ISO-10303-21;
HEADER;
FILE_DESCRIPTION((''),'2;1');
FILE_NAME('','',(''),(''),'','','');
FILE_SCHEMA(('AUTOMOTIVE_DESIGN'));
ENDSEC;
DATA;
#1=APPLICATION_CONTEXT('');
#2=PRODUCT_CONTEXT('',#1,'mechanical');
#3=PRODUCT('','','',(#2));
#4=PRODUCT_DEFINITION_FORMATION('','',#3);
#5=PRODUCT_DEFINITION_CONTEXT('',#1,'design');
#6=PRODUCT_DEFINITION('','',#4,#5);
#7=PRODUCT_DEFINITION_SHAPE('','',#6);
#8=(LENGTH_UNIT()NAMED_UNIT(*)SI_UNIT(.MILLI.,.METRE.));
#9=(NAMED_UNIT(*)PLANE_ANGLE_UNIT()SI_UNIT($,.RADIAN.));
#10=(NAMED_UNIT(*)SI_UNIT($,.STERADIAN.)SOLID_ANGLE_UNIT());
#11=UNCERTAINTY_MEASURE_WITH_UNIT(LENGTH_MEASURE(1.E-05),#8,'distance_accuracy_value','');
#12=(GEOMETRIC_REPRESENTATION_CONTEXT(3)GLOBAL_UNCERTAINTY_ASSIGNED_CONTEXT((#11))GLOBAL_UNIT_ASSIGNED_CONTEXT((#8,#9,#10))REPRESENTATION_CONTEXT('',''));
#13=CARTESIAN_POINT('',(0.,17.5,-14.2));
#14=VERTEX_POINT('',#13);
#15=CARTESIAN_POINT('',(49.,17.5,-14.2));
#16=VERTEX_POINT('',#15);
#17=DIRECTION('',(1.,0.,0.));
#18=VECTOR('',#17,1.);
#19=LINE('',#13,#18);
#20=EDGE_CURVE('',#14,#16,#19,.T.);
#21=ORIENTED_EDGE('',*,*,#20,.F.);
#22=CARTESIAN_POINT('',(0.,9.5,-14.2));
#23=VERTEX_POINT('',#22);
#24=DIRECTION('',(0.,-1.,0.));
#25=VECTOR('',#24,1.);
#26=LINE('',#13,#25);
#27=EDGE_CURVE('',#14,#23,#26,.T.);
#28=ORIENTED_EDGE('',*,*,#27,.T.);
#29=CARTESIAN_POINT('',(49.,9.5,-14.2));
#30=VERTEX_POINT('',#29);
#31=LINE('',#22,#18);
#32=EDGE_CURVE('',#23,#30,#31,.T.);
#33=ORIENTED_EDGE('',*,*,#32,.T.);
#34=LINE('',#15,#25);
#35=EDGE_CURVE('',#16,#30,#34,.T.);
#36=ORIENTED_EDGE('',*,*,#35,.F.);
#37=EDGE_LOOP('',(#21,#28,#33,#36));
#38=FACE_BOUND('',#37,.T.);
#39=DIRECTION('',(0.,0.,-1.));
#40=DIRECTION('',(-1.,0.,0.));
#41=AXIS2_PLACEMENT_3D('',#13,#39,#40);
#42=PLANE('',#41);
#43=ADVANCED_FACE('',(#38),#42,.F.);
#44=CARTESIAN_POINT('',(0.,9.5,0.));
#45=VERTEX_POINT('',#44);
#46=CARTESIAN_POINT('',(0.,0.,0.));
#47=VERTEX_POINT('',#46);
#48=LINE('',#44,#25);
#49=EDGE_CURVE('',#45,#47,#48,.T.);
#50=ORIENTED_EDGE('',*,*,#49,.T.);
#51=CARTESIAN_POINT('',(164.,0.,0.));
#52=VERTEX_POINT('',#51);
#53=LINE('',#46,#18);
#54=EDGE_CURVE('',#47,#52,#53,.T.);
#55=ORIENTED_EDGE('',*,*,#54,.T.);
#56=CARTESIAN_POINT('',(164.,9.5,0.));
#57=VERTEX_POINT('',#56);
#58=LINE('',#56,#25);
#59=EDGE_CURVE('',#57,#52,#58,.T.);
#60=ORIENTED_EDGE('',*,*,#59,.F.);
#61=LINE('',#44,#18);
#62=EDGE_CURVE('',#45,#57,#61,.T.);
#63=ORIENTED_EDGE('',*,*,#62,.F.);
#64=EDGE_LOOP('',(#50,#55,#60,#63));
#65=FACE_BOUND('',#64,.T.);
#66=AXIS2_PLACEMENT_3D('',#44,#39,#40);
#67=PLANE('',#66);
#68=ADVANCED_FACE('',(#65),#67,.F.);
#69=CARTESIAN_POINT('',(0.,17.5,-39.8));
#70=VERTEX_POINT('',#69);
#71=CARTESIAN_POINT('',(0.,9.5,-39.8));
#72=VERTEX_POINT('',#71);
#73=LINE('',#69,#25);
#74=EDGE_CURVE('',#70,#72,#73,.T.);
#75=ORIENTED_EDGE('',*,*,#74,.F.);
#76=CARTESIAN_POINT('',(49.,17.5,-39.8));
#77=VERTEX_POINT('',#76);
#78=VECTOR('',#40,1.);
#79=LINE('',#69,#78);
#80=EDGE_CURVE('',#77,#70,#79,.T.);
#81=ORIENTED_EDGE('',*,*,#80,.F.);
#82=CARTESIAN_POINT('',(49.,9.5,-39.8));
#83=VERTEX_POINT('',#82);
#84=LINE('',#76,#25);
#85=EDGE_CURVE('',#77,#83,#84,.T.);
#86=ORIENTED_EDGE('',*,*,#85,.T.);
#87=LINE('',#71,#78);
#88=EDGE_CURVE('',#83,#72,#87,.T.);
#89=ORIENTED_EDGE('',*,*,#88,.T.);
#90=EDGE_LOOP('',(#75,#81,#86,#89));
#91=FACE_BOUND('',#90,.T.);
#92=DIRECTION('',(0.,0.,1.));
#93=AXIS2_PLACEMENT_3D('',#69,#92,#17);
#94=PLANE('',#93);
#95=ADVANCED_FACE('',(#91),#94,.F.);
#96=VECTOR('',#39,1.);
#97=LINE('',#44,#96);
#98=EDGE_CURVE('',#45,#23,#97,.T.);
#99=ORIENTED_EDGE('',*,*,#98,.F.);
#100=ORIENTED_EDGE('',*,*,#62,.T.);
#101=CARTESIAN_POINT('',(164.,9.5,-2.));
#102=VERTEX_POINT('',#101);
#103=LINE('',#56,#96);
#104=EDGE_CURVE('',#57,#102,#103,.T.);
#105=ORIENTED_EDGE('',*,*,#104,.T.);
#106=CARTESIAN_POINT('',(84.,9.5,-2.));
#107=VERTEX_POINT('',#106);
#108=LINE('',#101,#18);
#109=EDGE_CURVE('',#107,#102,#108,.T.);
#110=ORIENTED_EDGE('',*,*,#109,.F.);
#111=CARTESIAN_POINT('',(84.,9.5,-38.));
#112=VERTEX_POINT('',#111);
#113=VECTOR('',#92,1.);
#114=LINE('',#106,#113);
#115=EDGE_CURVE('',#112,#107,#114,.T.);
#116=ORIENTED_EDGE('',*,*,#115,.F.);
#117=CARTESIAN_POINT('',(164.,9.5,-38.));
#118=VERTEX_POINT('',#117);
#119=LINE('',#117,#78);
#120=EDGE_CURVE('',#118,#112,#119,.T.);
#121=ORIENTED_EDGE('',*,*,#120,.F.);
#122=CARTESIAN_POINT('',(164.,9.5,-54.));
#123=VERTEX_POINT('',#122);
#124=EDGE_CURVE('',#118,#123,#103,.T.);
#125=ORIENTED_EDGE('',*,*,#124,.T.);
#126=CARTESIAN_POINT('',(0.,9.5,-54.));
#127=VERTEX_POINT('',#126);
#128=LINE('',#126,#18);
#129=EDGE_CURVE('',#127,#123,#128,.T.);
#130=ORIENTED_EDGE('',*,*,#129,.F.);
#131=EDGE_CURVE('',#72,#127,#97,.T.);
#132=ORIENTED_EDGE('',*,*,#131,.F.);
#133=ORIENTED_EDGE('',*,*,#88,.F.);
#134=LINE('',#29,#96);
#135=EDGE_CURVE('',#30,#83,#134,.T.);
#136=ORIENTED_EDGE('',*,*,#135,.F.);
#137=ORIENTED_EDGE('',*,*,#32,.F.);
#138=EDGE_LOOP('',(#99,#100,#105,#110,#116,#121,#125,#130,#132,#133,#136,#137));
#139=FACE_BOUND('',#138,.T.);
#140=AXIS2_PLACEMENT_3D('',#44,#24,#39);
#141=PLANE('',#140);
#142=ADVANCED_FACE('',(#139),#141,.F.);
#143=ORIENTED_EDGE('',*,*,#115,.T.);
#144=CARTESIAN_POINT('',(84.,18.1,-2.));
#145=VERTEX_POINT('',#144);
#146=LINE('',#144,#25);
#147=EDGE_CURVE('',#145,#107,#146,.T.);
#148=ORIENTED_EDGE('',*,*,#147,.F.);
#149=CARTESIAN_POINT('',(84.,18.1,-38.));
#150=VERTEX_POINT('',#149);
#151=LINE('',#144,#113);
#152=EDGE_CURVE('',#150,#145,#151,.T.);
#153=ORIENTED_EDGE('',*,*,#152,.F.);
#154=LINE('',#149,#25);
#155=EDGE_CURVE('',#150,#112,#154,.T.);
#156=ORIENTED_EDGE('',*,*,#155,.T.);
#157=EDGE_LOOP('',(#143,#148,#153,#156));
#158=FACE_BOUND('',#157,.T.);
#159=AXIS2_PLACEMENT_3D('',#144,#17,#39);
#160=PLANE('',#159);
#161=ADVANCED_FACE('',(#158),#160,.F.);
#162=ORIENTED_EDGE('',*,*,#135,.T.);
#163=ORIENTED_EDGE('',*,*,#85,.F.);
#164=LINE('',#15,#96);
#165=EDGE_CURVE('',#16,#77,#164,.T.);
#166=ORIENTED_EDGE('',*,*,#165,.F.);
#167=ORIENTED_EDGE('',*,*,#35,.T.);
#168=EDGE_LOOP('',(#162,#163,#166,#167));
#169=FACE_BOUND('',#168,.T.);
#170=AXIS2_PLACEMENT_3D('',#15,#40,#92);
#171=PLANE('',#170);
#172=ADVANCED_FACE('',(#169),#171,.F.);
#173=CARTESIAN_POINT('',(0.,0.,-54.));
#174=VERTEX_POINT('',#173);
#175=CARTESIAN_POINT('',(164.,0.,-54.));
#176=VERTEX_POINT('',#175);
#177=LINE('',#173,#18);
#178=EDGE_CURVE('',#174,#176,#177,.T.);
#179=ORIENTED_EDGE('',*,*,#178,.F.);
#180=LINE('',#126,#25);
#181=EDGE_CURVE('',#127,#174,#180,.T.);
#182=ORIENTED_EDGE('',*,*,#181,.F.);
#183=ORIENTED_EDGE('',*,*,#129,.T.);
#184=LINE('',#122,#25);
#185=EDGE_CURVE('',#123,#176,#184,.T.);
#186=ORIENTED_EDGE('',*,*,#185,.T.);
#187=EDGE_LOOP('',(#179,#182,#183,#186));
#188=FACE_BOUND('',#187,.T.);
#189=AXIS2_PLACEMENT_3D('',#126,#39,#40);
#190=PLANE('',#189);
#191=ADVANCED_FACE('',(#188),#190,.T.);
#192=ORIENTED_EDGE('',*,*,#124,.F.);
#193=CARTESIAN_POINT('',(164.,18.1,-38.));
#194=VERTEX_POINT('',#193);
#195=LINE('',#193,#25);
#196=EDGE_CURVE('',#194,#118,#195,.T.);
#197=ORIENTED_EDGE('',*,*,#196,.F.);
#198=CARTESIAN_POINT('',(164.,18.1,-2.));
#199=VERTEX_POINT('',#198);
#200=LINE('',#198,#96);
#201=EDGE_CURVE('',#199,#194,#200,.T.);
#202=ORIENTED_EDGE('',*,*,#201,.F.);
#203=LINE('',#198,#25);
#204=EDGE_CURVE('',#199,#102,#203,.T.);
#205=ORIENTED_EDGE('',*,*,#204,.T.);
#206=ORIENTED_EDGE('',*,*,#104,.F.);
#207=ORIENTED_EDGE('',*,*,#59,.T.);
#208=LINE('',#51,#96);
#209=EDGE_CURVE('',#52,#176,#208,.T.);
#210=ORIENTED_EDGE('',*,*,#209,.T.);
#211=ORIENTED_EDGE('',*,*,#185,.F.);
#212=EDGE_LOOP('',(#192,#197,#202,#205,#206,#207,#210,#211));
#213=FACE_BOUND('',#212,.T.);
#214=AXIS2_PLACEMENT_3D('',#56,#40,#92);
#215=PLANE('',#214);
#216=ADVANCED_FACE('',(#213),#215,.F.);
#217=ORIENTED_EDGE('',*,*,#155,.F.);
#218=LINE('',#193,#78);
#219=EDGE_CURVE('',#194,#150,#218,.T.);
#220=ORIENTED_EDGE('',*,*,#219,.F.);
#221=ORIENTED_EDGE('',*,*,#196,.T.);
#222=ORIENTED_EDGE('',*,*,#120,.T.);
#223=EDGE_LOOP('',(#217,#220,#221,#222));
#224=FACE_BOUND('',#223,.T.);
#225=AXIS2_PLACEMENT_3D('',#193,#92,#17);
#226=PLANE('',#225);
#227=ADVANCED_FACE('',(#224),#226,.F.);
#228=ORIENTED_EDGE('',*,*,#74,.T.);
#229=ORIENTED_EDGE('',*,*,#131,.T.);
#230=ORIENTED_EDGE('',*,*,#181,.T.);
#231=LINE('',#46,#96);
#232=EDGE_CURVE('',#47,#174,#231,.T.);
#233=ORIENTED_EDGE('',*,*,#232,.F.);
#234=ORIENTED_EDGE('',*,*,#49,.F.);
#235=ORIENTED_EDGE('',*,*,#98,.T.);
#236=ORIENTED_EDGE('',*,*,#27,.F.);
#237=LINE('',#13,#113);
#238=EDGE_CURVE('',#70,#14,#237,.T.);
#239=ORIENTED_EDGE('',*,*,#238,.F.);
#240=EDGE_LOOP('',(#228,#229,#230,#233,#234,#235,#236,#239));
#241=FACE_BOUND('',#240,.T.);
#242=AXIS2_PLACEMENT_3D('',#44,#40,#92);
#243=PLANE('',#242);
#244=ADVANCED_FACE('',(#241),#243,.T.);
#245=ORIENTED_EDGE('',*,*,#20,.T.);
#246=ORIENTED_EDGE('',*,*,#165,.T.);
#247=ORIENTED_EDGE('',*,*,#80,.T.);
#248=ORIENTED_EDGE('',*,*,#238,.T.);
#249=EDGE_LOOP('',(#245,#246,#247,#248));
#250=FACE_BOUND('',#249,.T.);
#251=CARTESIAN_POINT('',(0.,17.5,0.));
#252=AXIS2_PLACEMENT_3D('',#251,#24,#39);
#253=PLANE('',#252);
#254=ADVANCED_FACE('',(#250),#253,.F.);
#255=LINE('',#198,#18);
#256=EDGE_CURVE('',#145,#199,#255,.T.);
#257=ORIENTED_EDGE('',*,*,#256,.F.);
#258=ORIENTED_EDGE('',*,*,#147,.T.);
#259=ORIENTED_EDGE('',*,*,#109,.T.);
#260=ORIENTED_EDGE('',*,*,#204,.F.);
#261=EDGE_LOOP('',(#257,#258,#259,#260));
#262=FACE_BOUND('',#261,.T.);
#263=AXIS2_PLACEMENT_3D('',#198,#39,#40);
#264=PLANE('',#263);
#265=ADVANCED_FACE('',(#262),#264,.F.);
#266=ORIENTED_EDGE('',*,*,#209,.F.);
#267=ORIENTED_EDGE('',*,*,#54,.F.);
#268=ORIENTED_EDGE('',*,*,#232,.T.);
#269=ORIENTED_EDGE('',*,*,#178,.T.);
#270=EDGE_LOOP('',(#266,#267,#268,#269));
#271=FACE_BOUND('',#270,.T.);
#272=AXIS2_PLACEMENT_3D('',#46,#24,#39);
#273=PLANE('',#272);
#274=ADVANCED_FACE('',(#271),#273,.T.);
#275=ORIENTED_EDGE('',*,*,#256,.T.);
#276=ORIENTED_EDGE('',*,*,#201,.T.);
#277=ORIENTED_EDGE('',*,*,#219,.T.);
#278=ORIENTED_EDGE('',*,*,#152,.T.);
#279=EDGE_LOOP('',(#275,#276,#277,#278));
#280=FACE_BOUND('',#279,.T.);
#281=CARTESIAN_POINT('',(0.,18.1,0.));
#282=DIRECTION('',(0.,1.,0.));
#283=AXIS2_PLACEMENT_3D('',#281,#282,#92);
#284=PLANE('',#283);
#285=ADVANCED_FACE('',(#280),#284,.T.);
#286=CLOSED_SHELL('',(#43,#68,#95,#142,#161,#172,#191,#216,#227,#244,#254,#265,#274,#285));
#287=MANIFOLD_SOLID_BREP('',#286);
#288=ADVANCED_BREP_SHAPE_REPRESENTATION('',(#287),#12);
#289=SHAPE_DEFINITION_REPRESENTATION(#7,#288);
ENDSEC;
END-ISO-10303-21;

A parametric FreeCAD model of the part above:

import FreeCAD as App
import Part
import Sketcher
Q = App.Units.Quantity


def add_polygon(sketch, points):
    """Adds a closed chain of lines whose ends are joined by coincident constraints."""
    first, n = sketch.GeometryCount, len(points)
    for a, b in zip(points, points[1:] + points[:1]):
        sketch.addGeometry(Part.LineSegment(App.Vector(*a, 0), App.Vector(*b, 0)), False)
    for i in range(n):
        sketch.addConstraint(Sketcher.Constraint("Coincident", first + i, 2, first + (i + 1) % n, 1))

doc = App.newDocument("Part")
params = doc.addObject("Spreadsheet::Sheet", "Params")
for row, (alias, value) in enumerate([
    ("sketch1_width", "164 mm"),
    ("sketch1_height", "54 mm"),
    ("pad1_length", "9.5 mm"),
    ("sketch2_width", "49 mm"),
    ("sketch2_height", "25.6 mm"),
    ("pad2_length", "8 mm"),
    ("sketch3_width", "80 mm"),
    ("sketch3_height", "36 mm"),
    ("pad3_length", "8.6 mm"),
], start=1):
    params.set(f"A{row}", alias)
    params.set(f"B{row}", "=" + value)
    params.setAlias(f"B{row}", alias)

body = doc.addObject("PartDesign::Body", "Body")

sketch1 = body.newObject("Sketcher::SketchObject", "Sketch")
sketch1.AttachmentSupport = (doc.getObject("XZ_Plane"), [""])
sketch1.MapMode = "FlatFace"
add_polygon(sketch1, [(0, -54), (0, 0), (164, 0), (164, -54)])
sketch1.addConstraint(Sketcher.Constraint("Vertical", 0))
sketch1.addConstraint(Sketcher.Constraint("Horizontal", 1))
sketch1.addConstraint(Sketcher.Constraint("Vertical", 2))
sketch1.addConstraint(Sketcher.Constraint("Horizontal", 3))
sketch1.addConstraint(Sketcher.Constraint("Coincident", 0, 2, -1, 1))
sketch1.addConstraint(Sketcher.Constraint("DistanceX", 1, 1, 1, 2, Q("164 mm")))
sketch1.addConstraint(Sketcher.Constraint("DistanceY", 0, 1, 0, 2, Q("54 mm")))
sketch1.setExpression("Constraints[9]", "Params.sketch1_width")
sketch1.setExpression("Constraints[10]", "Params.sketch1_height")
pad1 = body.newObject("PartDesign::Pad", "Pad")
pad1.Profile = sketch1
pad1.setExpression("Length", "Params.pad1_length")
pad1.Reversed = True

sketch2 = body.newObject("Sketcher::SketchObject", "Sketch001")
sketch2.AttachmentSupport = (doc.getObject("XZ_Plane"), [""])
sketch2.MapMode = "FlatFace"
sketch2.AttachmentOffset = App.Placement(App.Vector(0, 0, -9.5), App.Rotation())
add_polygon(sketch2, [(0, -40), (0, -14), (49, -14), (49, -40)])
sketch2.addConstraint(Sketcher.Constraint("Vertical", 0))
sketch2.addConstraint(Sketcher.Constraint("Horizontal", 1))
sketch2.addConstraint(Sketcher.Constraint("Vertical", 2))
sketch2.addConstraint(Sketcher.Constraint("Horizontal", 3))
sketch2.addConstraint(Sketcher.Constraint("PointOnObject", 0, 2, -2))
sketch2.addConstraint(Sketcher.Constraint("DistanceX", 1, 1, 1, 2, Q("49 mm")))
sketch2.addConstraint(Sketcher.Constraint("DistanceY", 0, 1, 0, 2, Q("25.6 mm")))
sketch2.addConstraint(Sketcher.Constraint("DistanceY", 0, 2, -1, 1, Q("14.2 mm")))
sketch2.setExpression("Constraints[9]", "Params.sketch2_width")
sketch2.setExpression("Constraints[10]", "Params.sketch2_height")
pad2 = body.newObject("PartDesign::Pad", "Pad001")
pad2.Profile = sketch2
pad2.setExpression("Length", "Params.pad2_length")
pad2.Reversed = True

sketch3 = body.newObject("Sketcher::SketchObject", "Sketch002")
sketch3.AttachmentSupport = (doc.getObject("XZ_Plane"), [""])
sketch3.MapMode = "FlatFace"
sketch3.AttachmentOffset = App.Placement(App.Vector(0, 0, -9.5), App.Rotation())
add_polygon(sketch3, [(84, -38), (84, -2), (164, -2), (164, -38)])
sketch3.addConstraint(Sketcher.Constraint("Vertical", 0))
sketch3.addConstraint(Sketcher.Constraint("Horizontal", 1))
sketch3.addConstraint(Sketcher.Constraint("Vertical", 2))
sketch3.addConstraint(Sketcher.Constraint("Horizontal", 3))
sketch3.addConstraint(Sketcher.Constraint("DistanceX", 1, 1, 1, 2, Q("80 mm")))
sketch3.addConstraint(Sketcher.Constraint("DistanceY", 0, 1, 0, 2, Q("36 mm")))
sketch3.addConstraint(Sketcher.Constraint("DistanceX", -1, 1, 0, 2, Q("84 mm")))
sketch3.addConstraint(Sketcher.Constraint("DistanceY", 0, 2, -1, 1, Q("2 mm")))
sketch3.setExpression("Constraints[8]", "Params.sketch3_width")
sketch3.setExpression("Constraints[9]", "Params.sketch3_height")
pad3 = body.newObject("PartDesign::Pad", "Pad002")
pad3.Profile = sketch3
pad3.setExpression("Length", "Params.pad3_length")
pad3.Reversed = True

doc.recompute()
